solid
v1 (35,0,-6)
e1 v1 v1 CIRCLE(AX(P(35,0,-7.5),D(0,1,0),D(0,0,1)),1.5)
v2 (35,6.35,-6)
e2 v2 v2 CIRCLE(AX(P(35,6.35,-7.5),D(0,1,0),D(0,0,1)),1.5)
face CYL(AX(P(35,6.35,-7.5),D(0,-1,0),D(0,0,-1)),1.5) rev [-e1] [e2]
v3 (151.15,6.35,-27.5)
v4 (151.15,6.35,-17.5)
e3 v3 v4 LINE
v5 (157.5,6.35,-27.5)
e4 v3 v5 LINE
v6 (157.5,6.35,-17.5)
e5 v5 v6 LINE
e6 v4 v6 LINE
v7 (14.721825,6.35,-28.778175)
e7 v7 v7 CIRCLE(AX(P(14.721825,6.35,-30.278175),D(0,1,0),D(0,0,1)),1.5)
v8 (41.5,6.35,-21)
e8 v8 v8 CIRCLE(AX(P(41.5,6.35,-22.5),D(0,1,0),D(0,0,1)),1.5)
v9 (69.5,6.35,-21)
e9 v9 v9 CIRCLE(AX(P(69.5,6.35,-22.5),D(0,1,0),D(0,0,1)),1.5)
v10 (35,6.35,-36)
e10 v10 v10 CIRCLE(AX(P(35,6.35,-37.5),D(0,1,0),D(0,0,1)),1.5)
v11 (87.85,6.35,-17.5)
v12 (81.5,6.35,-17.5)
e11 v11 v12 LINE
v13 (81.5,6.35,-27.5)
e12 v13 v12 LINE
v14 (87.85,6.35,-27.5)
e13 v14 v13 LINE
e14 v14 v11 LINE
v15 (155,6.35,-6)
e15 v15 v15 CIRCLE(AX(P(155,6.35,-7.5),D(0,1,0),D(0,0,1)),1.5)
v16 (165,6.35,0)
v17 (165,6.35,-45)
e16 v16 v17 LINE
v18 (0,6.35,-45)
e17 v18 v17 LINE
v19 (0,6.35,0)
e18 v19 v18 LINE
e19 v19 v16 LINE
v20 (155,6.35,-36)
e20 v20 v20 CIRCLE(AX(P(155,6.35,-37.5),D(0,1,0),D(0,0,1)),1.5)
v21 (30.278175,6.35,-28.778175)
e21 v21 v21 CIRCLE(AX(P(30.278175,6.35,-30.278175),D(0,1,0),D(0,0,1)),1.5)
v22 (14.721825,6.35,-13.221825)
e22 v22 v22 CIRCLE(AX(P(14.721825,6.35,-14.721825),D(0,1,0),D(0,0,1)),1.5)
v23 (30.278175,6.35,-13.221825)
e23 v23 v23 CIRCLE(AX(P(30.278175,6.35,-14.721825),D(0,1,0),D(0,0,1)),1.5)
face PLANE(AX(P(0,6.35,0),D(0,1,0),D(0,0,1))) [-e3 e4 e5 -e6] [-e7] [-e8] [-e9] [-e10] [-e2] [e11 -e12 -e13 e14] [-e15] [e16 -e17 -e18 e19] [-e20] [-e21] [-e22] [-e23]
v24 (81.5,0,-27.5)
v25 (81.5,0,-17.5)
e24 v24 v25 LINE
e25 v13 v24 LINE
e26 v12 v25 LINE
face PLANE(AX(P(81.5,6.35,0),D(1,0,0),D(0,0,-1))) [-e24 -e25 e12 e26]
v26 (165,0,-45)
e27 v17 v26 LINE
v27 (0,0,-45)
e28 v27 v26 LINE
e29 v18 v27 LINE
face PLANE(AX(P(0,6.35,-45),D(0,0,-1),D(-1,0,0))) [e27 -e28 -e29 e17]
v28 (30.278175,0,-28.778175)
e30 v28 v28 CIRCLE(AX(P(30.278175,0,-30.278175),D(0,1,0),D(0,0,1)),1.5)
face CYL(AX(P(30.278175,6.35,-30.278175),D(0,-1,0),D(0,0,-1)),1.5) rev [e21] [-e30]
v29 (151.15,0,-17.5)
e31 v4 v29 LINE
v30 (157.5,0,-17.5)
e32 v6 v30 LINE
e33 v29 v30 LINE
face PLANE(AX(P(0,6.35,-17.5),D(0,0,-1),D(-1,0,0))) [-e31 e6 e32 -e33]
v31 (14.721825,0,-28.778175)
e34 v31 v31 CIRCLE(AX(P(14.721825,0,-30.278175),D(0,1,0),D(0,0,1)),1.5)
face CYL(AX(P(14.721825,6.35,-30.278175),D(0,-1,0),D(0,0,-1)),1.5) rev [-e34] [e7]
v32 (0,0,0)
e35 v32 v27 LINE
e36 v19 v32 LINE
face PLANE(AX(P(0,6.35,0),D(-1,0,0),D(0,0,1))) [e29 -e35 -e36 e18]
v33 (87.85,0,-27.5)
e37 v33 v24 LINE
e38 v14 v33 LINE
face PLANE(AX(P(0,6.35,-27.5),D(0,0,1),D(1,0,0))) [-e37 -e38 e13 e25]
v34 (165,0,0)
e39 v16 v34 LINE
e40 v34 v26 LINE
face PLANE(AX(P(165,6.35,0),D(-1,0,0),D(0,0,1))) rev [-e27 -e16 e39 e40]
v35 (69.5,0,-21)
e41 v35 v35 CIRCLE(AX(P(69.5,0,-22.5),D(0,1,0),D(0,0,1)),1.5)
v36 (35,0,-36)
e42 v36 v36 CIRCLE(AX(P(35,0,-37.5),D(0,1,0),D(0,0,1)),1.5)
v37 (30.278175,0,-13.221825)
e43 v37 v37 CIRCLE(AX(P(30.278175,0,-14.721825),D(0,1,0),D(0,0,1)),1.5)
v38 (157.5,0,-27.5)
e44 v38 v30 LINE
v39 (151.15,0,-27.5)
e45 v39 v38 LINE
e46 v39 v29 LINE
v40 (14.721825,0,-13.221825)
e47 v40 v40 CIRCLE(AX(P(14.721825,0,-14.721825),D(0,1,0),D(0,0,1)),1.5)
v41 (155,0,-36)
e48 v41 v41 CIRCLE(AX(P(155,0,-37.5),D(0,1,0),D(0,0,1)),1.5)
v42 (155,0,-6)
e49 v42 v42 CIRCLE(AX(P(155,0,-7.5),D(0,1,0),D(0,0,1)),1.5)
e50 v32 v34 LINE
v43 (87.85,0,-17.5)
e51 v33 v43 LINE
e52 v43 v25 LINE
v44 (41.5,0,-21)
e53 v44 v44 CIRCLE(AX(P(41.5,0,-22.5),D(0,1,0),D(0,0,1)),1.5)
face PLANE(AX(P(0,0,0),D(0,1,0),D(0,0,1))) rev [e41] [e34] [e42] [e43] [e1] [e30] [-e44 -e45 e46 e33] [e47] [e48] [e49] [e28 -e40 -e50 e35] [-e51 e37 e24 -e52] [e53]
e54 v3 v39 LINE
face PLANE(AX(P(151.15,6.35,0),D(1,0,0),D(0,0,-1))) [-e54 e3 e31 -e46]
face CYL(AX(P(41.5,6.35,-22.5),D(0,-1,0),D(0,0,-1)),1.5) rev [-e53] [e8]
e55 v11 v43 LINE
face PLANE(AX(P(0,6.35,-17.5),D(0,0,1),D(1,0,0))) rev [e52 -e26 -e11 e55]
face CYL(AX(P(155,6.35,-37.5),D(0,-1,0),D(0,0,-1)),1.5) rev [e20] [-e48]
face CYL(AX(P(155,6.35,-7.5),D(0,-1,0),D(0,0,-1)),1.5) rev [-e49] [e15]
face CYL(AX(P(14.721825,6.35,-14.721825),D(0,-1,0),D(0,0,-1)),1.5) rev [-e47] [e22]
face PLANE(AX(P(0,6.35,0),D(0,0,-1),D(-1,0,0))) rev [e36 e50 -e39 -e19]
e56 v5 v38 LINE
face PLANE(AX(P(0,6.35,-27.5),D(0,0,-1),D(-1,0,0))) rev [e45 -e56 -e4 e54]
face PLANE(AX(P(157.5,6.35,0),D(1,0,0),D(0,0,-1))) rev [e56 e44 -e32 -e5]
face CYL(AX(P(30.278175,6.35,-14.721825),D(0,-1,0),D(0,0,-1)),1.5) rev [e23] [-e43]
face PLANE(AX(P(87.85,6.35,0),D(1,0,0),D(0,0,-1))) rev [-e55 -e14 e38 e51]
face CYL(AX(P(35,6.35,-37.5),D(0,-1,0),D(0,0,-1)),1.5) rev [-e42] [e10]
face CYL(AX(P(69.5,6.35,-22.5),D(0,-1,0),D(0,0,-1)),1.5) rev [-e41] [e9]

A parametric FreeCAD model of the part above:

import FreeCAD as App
import Part
import Sketcher


def add_polygon(sketch, points):
    """Adds a closed chain of lines whose ends are joined by coincident constraints."""
    first, n = sketch.GeometryCount, len(points)
    for a, b in zip(points, points[1:] + points[:1]):
        sketch.addGeometry(Part.LineSegment(App.Vector(*a, 0), App.Vector(*b, 0)), False)
    for i in range(n):
        sketch.addConstraint(Sketcher.Constraint("Coincident", first + i, 2, first + (i + 1) % n, 1))

doc = App.newDocument("Part")
params = doc.addObject("Spreadsheet::Sheet", "Params")
for row, (alias, value) in enumerate([
    ("sketch1_diameter", "3 mm"),
    ("sketch1_width", "165 mm"),
    ("sketch1_height", "45 mm"),
    ("sketch1_height2", "10 mm"),
    ("sketch1_width2", "6.35 mm"),
    ("pad1_length", "6.35 mm"),
], start=1):
    params.set(f"A{row}", alias)
    params.set(f"B{row}", "=" + value)
    params.setAlias(f"B{row}", alias)

body = doc.addObject("PartDesign::Body", "Body")

# Sketch on XZ plane
sketch1 = body.newObject("Sketcher::SketchObject", "Sketch")
sketch1.AttachmentSupport = (doc.getObject("XZ_Plane"), [""])
sketch1.MapMode = "FlatFace"
add_polygon(sketch1, [(0, -45), (0, 0), (165, 0), (165, -45)])  # lines 0-3
sketch1.addGeometry(Part.Circle(App.Vector(35, -7.5, 0), App.Vector(0, 0, 1), 1.5), False)  # 4
sketch1.addGeometry(Part.Circle(App.Vector(14.7, -14.7, 0), App.Vector(0, 0, 1), 1.5), False)  # 5
sketch1.addGeometry(Part.Circle(App.Vector(30.3, -14.7, 0), App.Vector(0, 0, 1), 1.5), False)  # 6
sketch1.addGeometry(Part.Circle(App.Vector(155, -7.5, 0), App.Vector(0, 0, 1), 1.5), False)  # 7
sketch1.addGeometry(Part.Circle(App.Vector(41.5, -22.5, 0), App.Vector(0, 0, 1), 1.5), False)  # 8
sketch1.addGeometry(Part.Circle(App.Vector(14.7, -30.3, 0), App.Vector(0, 0, 1), 1.5), False)  # 9
sketch1.addGeometry(Part.Circle(App.Vector(30.3, -30.3, 0), App.Vector(0, 0, 1), 1.5), False)  # 10
sketch1.addGeometry(Part.Circle(App.Vector(69.5, -22.5, 0), App.Vector(0, 0, 1), 1.5), False)  # 11
add_polygon(sketch1, [(87.8, -17.5), (81.5, -17.5), (81.5, -27.5), (87.8, -27.5)])  # lines 12-15
sketch1.addGeometry(Part.Circle(App.Vector(35, -37.5, 0), App.Vector(0, 0, 1), 1.5), False)  # 16
add_polygon(sketch1, [(157.5, -17.5), (151.2, -17.5), (151.2, -27.5), (157.5, -27.5)])  # lines 17-20
sketch1.addGeometry(Part.Circle(App.Vector(155, -37.5, 0), App.Vector(0, 0, 1), 1.5), False)  # 21
sketch1.addConstraint(Sketcher.Constraint("Vertical", 0))
sketch1.addConstraint(Sketcher.Constraint("Horizontal", 1))
sketch1.addConstraint(Sketcher.Constraint("Vertical", 2))
sketch1.addConstraint(Sketcher.Constraint("Horizontal", 3))
sketch1.addConstraint(Sketcher.Constraint("Horizontal", 12))
sketch1.addConstraint(Sketcher.Constraint("Vertical", 13))
sketch1.addConstraint(Sketcher.Constraint("Horizontal", 14))
sketch1.addConstraint(Sketcher.Constraint("Vertical", 15))
sketch1.addConstraint(Sketcher.Constraint("Horizontal", 17))
sketch1.addConstraint(Sketcher.Constraint("Vertical", 18))
sketch1.addConstraint(Sketcher.Constraint("Horizontal", 19))
sketch1.addConstraint(Sketcher.Constraint("Vertical", 20))
sketch1.addConstraint(Sketcher.Constraint("Coincident", 0, 2, -1, 1))
sketch1.addConstraint(Sketcher.Constraint("Equal", 4, 5))
sketch1.addConstraint(Sketcher.Constraint("Equal", 5, 6))
sketch1.addConstraint(Sketcher.Constraint("Equal", 6, 7))
sketch1.addConstraint(Sketcher.Constraint("Equal", 7, 8))
sketch1.addConstraint(Sketcher.Constraint("Equal", 8, 9))
sketch1.addConstraint(Sketcher.Constraint("Equal", 9, 10))
sketch1.addConstraint(Sketcher.Constraint("Equal", 10, 11))
sketch1.addConstraint(Sketcher.Constraint("Equal", 11, 16))
sketch1.addConstraint(Sketcher.Constraint("Equal", 16, 21))
sketch1.addConstraint(Sketcher.Constraint("Horizontal", 5, 3, 6, 3))
sketch1.addConstraint(Sketcher.Constraint("Horizontal", 4, 3, 7, 3))
sketch1.addConstraint(Sketcher.Constraint("Horizontal", 9, 3, 10, 3))
sketch1.addConstraint(Sketcher.Constraint("Horizontal", 8, 3, 11, 3))
sketch1.addConstraint(Sketcher.Constraint("Horizontal", 16, 3, 21, 3))
sketch1.addConstraint(Sketcher.Constraint("Horizontal", 15, 2, 17, 2))
sketch1.addConstraint(Sketcher.Constraint("Horizontal", 14, 2, 18, 2))
sketch1.addConstraint(Sketcher.Constraint("Vertical", 5, 3, 9, 3))
sketch1.addConstraint(Sketcher.Constraint("Vertical", 6, 3, 10, 3))
sketch1.addConstraint(Sketcher.Constraint("Vertical", 4, 3, 16, 3))
sketch1.addConstraint(Sketcher.Constraint("Vertical", 7, 3, 21, 3))
sketch1.addConstraint(Sketcher.Constraint("Equal", 14, 17))
sketch1.addConstraint(Sketcher.Constraint("Diameter", 4, 3.0))
sketch1.addConstraint(Sketcher.Constraint("DistanceX", 1, 1, 1, 2, 165.0))
sketch1.addConstraint(Sketcher.Constraint("DistanceY", 0, 1, 0, 2, 45.0))
sketch1.addConstraint(Sketcher.Constraint("DistanceY", 13, 2, 13, 1, 10.0))
sketch1.addConstraint(Sketcher.Constraint("DistanceX", -1, 1, 4, 3, 35.0))
sketch1.addConstraint(Sketcher.Constraint("DistanceX", -1, 1, 7, 3, 155.0))
sketch1.addConstraint(Sketcher.Constraint("DistanceY", 8, 3, 4, 3, 15.0))
sketch1.addConstraint(Sketcher.Constraint("DistanceX", 8, 3, 11, 3, 28.0))
sketch1.addConstraint(Sketcher.Constraint("DistanceY", 16, 3, 8, 3, 15.0))
sketch1.addConstraint(Sketcher.Constraint("DistanceX", 11, 3, 12, 2, 12.0))
sketch1.addConstraint(Sketcher.Constraint("DistanceY", 11, 3, 12, 2, 5.0))
sketch1.addConstraint(Sketcher.Constraint("DistanceX", 12, 2, 12, 1, 6.35))
sketch1.addConstraint(Sketcher.Constraint("DistanceY", 4, 3, -1, 1, 7.5))
sketch1.addConstraint(Sketcher.Constraint("DistanceX", -1, 1, 8, 3, 41.5))
sketch1.addConstraint(Sketcher.Constraint("DistanceX", -1, 1, 19, 2, 157.5))
sketch1.addConstraint(Sketcher.Constraint("DistanceX", 5, 3, 6, 3, 15.556349))
sketch1.addConstraint(Sketcher.Constraint("DistanceY", 9, 3, 5, 3, 15.556349))
sketch1.addConstraint(Sketcher.Constraint("DistanceX", -1, 1, 5, 3, 14.721825))
sketch1.addConstraint(Sketcher.Constraint("DistanceY", 5, 3, -1, 1, 14.721825))
sketch1.setExpression("Constraints[46]", "Params.sketch1_diameter")
sketch1.setExpression("Constraints[47]", "Params.sketch1_width")
sketch1.setExpression("Constraints[48]", "Params.sketch1_height")
sketch1.setExpression("Constraints[49]", "Params.sketch1_height2")
sketch1.setExpression("Constraints[57]", "Params.sketch1_width2")
pad1 = body.newObject("PartDesign::Pad", "Pad")
pad1.Profile = sketch1
pad1.setExpression("Length", "Params.pad1_length")
pad1.Reversed = True

doc.recompute()
